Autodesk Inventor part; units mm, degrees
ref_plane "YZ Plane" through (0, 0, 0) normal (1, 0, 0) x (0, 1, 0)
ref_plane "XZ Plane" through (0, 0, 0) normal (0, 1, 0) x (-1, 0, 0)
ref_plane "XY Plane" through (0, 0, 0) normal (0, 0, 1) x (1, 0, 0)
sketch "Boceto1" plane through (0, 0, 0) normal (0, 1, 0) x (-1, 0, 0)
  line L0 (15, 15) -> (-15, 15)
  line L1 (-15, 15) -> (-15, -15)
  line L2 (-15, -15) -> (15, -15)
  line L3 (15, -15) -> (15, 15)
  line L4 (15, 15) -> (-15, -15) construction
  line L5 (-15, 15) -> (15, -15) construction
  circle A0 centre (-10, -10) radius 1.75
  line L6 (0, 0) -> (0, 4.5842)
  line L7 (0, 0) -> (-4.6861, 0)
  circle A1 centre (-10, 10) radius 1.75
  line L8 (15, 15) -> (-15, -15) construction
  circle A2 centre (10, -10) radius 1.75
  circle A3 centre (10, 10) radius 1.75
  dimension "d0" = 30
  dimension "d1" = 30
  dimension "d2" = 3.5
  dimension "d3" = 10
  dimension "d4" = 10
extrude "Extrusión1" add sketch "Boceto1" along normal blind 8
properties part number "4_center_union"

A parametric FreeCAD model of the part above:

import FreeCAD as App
import Part
import Sketcher

V = App.Vector

doc = App.newDocument("Part")
body = doc.addObject("PartDesign::Body", "Body")

# Sketch on XZ plane
sketch1 = doc.addObject("Sketcher::SketchObject", "Sketch")
body.addObject(sketch1)
sketch1.AttachmentSupport = (doc.XZ_Plane, [""])
sketch1.MapMode = "FlatFace"
sketch1.addGeometry([
    Part.LineSegment(V(-15, -15, 0), V(-15, 15, 0)),  # 0
    Part.LineSegment(V(-15, 15, 0), V(15, 15, 0)),  # 1
    Part.LineSegment(V(15, 15, 0), V(15, -15, 0)),  # 2
    Part.LineSegment(V(15, -15, 0), V(-15, -15, 0)),  # 3
    Part.Circle(V(10, -10, 0), V(0, 0, 1), 1.8),  # 4
    Part.Circle(V(-10, -10, 0), V(0, 0, 1), 1.8),  # 5
    Part.Circle(V(10, 10, 0), V(0, 0, 1), 1.8),  # 6
    Part.Circle(V(-10, 10, 0), V(0, 0, 1), 1.8),  # 7
], False)
sketch1.addConstraint([
    Sketcher.Constraint("Coincident", 0, 2, 1, 1),
    Sketcher.Constraint("Coincident", 1, 2, 2, 1),
    Sketcher.Constraint("Coincident", 2, 2, 3, 1),
    Sketcher.Constraint("Coincident", 3, 2, 0, 1),
    Sketcher.Constraint("Vertical", 0),
    Sketcher.Constraint("Horizontal", 1),
    Sketcher.Constraint("Vertical", 2),
    Sketcher.Constraint("Horizontal", 3),
    Sketcher.Constraint("Equal", 4, 5),
    Sketcher.Constraint("Equal", 5, 6),
    Sketcher.Constraint("Equal", 6, 7),
    Sketcher.Constraint("Symmetric", 5, 3, 6, 3, -1, 1),
    Sketcher.Constraint("Symmetric", 4, 3, 7, 3, -1, 1),
    Sketcher.Constraint("Symmetric", 0, 2, 2, 2, -1, 1),
    Sketcher.Constraint("Symmetric", 4, 3, 5, 3, -2),
    Sketcher.Constraint("Equal", 3, 0),
    Sketcher.Constraint("Diameter", 4, 3.5),
    Sketcher.Constraint("DistanceX", 1, 1, 1, 2, 30.0),
    Sketcher.Constraint("DistanceX", -1, 1, 4, 3, 10.0),
    Sketcher.Constraint("DistanceY", 4, 3, -1, 1, 10.0),
])
pad1 = doc.addObject("PartDesign::Pad", "Pad")
body.addObject(pad1)
pad1.Profile = sketch1
pad1.Length = 8
pad1.Reversed = True

doc.recompute()
